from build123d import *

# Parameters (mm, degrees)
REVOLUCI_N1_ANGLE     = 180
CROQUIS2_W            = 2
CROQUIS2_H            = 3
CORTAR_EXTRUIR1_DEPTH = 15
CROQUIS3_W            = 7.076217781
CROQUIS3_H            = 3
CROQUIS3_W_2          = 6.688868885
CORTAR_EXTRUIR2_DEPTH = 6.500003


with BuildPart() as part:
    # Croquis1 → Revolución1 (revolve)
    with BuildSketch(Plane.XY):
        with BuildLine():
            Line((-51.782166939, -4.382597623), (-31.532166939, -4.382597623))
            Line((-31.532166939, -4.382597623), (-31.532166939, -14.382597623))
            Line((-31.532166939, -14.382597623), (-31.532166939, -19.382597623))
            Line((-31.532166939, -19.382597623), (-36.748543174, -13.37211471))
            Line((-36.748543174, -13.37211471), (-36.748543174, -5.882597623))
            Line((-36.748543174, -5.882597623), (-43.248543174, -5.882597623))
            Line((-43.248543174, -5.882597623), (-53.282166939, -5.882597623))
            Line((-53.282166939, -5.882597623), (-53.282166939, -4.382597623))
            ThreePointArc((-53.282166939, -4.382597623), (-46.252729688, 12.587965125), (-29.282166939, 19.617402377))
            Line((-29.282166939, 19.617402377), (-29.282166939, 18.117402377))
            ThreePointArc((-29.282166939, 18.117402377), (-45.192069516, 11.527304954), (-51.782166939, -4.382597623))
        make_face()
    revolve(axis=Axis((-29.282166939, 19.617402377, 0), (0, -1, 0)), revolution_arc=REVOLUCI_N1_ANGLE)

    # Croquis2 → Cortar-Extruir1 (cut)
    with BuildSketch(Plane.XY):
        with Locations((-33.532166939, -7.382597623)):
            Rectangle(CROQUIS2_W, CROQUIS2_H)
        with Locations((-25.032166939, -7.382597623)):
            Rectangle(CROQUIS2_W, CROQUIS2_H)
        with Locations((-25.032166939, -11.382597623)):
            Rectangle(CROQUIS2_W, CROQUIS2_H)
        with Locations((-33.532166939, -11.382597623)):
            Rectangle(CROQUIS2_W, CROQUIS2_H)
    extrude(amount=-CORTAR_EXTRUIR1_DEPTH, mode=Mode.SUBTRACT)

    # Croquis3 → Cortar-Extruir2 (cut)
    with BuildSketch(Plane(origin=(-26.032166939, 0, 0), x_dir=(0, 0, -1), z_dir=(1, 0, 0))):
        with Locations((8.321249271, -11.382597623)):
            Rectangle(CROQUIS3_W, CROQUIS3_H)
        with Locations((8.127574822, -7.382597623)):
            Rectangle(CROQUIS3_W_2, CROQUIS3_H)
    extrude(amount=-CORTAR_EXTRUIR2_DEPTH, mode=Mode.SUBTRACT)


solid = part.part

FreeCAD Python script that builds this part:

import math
import FreeCAD as App
import Part
import Sketcher
from FreeCAD import Vector

doc = App.newDocument("Part")
body = doc.addObject("PartDesign::Body", "Body")

# Sketch on XY plane
sketch1 = doc.addObject("Sketcher::SketchObject", "Sketch")
body.addObject(sketch1)
sketch1.AttachmentSupport = (doc.XY_Plane, [""])
sketch1.MapMode = "FlatFace"
sketch1.addGeometry([
    Part.LineSegment(Vector(-31.5, -4.4, 0), Vector(-51.8, -4.4, 0)),  # 0
    Part.ArcOfCircle(Part.Circle(Vector(-29.3, -4.4, 0), Vector(0, 0, 1), 22.5), math.radians(90), math.radians(180)),  # 1
    Part.LineSegment(Vector(-29.3, 18.1, 0), Vector(-29.3, 19.6, 0)),  # 2
    Part.ArcOfCircle(Part.Circle(Vector(-29.3, -4.4, 0), Vector(0, 0, 1), 24), math.radians(90), math.radians(180)),  # 3
    Part.LineSegment(Vector(-53.3, -4.4, 0), Vector(-53.3, -5.9, 0)),  # 4
    Part.LineSegment(Vector(-53.3, -5.9, 0), Vector(-36.7, -5.9, 0)),  # 5
    Part.LineSegment(Vector(-36.7, -5.9, 0), Vector(-36.7, -13.4, 0)),  # 6
    Part.LineSegment(Vector(-36.7, -13.4, 0), Vector(-31.5, -19.4, 0)),  # 7
    Part.LineSegment(Vector(-31.5, -19.4, 0), Vector(-31.5, -4.4, 0)),  # 8
], False)
sketch1.addGeometry(Part.LineSegment(Vector(-29.3, 19.6, 0), Vector(-29.3, -19.4, 0)), True)  # axis
sketch1.addConstraint([
    Sketcher.Constraint("Coincident", 0, 2, 1, 2),
    Sketcher.Constraint("Coincident", 1, 1, 2, 1),
    Sketcher.Constraint("Coincident", 2, 2, 3, 1),
    Sketcher.Constraint("Tangent", 3, 2, 4, 1),
    Sketcher.Constraint("Coincident", 4, 2, 5, 1),
    Sketcher.Constraint("Coincident", 5, 2, 6, 1),
    Sketcher.Constraint("Coincident", 6, 2, 7, 1),
    Sketcher.Constraint("Coincident", 7, 2, 8, 1),
    Sketcher.Constraint("Coincident", 8, 2, 0, 1),
    Sketcher.Constraint("Horizontal", 0),
    Sketcher.Constraint("Vertical", 2),
    Sketcher.Constraint("Vertical", 4),
    Sketcher.Constraint("Horizontal", 5),
    Sketcher.Constraint("Vertical", 6),
    Sketcher.Constraint("Vertical", 8),
    Sketcher.Constraint("Vertical", 9),
    Sketcher.Constraint("Coincident", 3, 3, 1, 3),
    Sketcher.Constraint("Coincident", 9, 1, 2, 2),
    Sketcher.Constraint("Horizontal", 3, 3, 0, 2),
    Sketcher.Constraint("Horizontal", 7, 2, 9, 2),
    Sketcher.Constraint("Vertical", 3, 3, 1, 1),
    Sketcher.Constraint("Equal", 2, 4),
    Sketcher.Constraint("Radius", 3, 24.0),
    Sketcher.Constraint("Radius", 1, 22.5),
    Sketcher.Constraint("DistanceY", 8, 1, 8, 2, 15.0),
    Sketcher.Constraint("DistanceX", 0, 2, 0, 1, 20.25),
    Sketcher.Constraint("DistanceX", 5, 1, 5, 2, 16.533624),
    Sketcher.Constraint("DistanceY", 6, 2, 6, 1, 7.489517),
    Sketcher.Constraint("DistanceX", 1, 3, -1, 1, 29.282167),
    Sketcher.Constraint("DistanceY", 1, 3, -1, 1, 4.382598),
])
revolution = doc.addObject("PartDesign::Revolution", "Revolution")
body.addObject(revolution)
revolution.Profile = sketch1
revolution.ReferenceAxis = (sketch1, ["Axis0"])
revolution.Angle = 180

# Sketch on XY plane
sketch2 = doc.addObject("Sketcher::SketchObject", "Sketch001")
body.addObject(sketch2)
sketch2.AttachmentSupport = (doc.XY_Plane, [""])
sketch2.MapMode = "FlatFace"
sketch2.addGeometry([
    Part.LineSegment(Vector(-34.5, -5.9, 0), Vector(-34.5, -8.9, 0)),  # 0
    Part.LineSegment(Vector(-34.5, -8.9, 0), Vector(-32.5, -8.9, 0)),  # 1
    Part.LineSegment(Vector(-32.5, -8.9, 0), Vector(-32.5, -5.9, 0)),  # 2
    Part.LineSegment(Vector(-32.5, -5.9, 0), Vector(-34.5, -5.9, 0)),  # 3
    Part.LineSegment(Vector(-26, -5.9, 0), Vector(-26, -8.9, 0)),  # 4
    Part.LineSegment(Vector(-26, -8.9, 0), Vector(-24, -8.9, 0)),  # 5
    Part.LineSegment(Vector(-24, -8.9, 0), Vector(-24, -5.9, 0)),  # 6
    Part.LineSegment(Vector(-24, -5.9, 0), Vector(-26, -5.9, 0)),  # 7
    Part.LineSegment(Vector(-26, -9.9, 0), Vector(-26, -12.9, 0)),  # 8
    Part.LineSegment(Vector(-26, -12.9, 0), Vector(-24, -12.9, 0)),  # 9
    Part.LineSegment(Vector(-24, -12.9, 0), Vector(-24, -9.9, 0)),  # 10
    Part.LineSegment(Vector(-24, -9.9, 0), Vector(-26, -9.9, 0)),  # 11
    Part.LineSegment(Vector(-34.5, -9.9, 0), Vector(-34.5, -12.9, 0)),  # 12
    Part.LineSegment(Vector(-34.5, -12.9, 0), Vector(-32.5, -12.9, 0)),  # 13
    Part.LineSegment(Vector(-32.5, -12.9, 0), Vector(-32.5, -9.9, 0)),  # 14
    Part.LineSegment(Vector(-32.5, -9.9, 0), Vector(-34.5, -9.9, 0)),  # 15
], False)
sketch2.addConstraint([
    Sketcher.Constraint("Coincident", 0, 2, 1, 1),
    Sketcher.Constraint("Coincident", 1, 2, 2, 1),
    Sketcher.Constraint("Coincident", 2, 2, 3, 1),
    Sketcher.Constraint("Coincident", 3, 2, 0, 1),
    Sketcher.Constraint("Coincident", 4, 2, 5, 1),
    Sketcher.Constraint("Coincident", 5, 2, 6, 1),
    Sketcher.Constraint("Coincident", 6, 2, 7, 1),
    Sketcher.Constraint("Coincident", 7, 2, 4, 1),
    Sketcher.Constraint("Coincident", 8, 2, 9, 1),
    Sketcher.Constraint("Coincident", 9, 2, 10, 1),
    Sketcher.Constraint("Coincident", 10, 2, 11, 1),
    Sketcher.Constraint("Coincident", 11, 2, 8, 1),
    Sketcher.Constraint("Coincident", 12, 2, 13, 1),
    Sketcher.Constraint("Coincident", 13, 2, 14, 1),
    Sketcher.Constraint("Coincident", 14, 2, 15, 1),
    Sketcher.Constraint("Coincident", 15, 2, 12, 1),
    Sketcher.Constraint("Vertical", 0),
    Sketcher.Constraint("Horizontal", 1),
    Sketcher.Constraint("Vertical", 2),
    Sketcher.Constraint("Horizontal", 3),
    Sketcher.Constraint("Vertical", 4),
    Sketcher.Constraint("Horizontal", 5),
    Sketcher.Constraint("Vertical", 6),
    Sketcher.Constraint("Horizontal", 7),
    Sketcher.Constraint("Vertical", 8),
    Sketcher.Constraint("Horizontal", 9),
    Sketcher.Constraint("Vertical", 10),
    Sketcher.Constraint("Horizontal", 11),
    Sketcher.Constraint("Vertical", 12),
    Sketcher.Constraint("Horizontal", 13),
    Sketcher.Constraint("Vertical", 14),
    Sketcher.Constraint("Horizontal", 15),
    Sketcher.Constraint("Horizontal", 1, 2, 4, 2),
    Sketcher.Constraint("Horizontal", 3, 2, 6, 2),
    Sketcher.Constraint("Horizontal", 9, 2, 12, 2),
    Sketcher.Constraint("Horizontal", 11, 2, 14, 2),
    Sketcher.Constraint("Vertical", 7, 2, 8, 2),
    Sketcher.Constraint("Vertical", 6, 2, 9, 2),
    Sketcher.Constraint("Vertical", 3, 2, 12, 2),
    Sketcher.Constraint("Vertical", 2, 2, 13, 2),
    Sketcher.Constraint("Equal", 3, 5),
    Sketcher.Constraint("Equal", 6, 8),
    Sketcher.Constraint("DistanceX", 1, 1, 1, 2, 2.0),
    Sketcher.Constraint("DistanceY", 0, 2, 0, 1, 3.0),
    Sketcher.Constraint("DistanceY", 8, 2, 4, 2, 4.0),
    Sketcher.Constraint("DistanceX", 1, 2, 4, 2, 6.5),
    Sketcher.Constraint("DistanceX", 0, 2, -1, 1, 34.532167),
    Sketcher.Constraint("DistanceY", 0, 2, -1, 1, 8.882598),
])
pocket1 = doc.addObject("PartDesign::Pocket", "Pocket")
body.addObject(pocket1)
pocket1.Profile = sketch2
pocket1.Length = 15

# Sketch on YZ plane
sketch3 = doc.addObject("Sketcher::SketchObject", "Sketch002")
body.addObject(sketch3)
sketch3.AttachmentSupport = (doc.YZ_Plane, [""])
sketch3.MapMode = "FlatFace"
sketch3.AttachmentOffset = App.Placement(Vector(0, 0, -26.032167), App.Rotation())
sketch3.addGeometry([
    Part.LineSegment(Vector(-9.9, -4.8, 0), Vector(-12.9, -4.8, 0)),  # 0
    Part.LineSegment(Vector(-12.9, -4.8, 0), Vector(-12.9, -11.9, 0)),  # 1
    Part.LineSegment(Vector(-12.9, -11.9, 0), Vector(-9.9, -11.9, 0)),  # 2
    Part.LineSegment(Vector(-9.9, -11.9, 0), Vector(-9.9, -4.8, 0)),  # 3
    Part.LineSegment(Vector(-5.9, -4.8, 0), Vector(-8.9, -4.8, 0)),  # 4
    Part.LineSegment(Vector(-8.9, -4.8, 0), Vector(-8.9, -11.5, 0)),  # 5
    Part.LineSegment(Vector(-8.9, -11.5, 0), Vector(-5.9, -11.5, 0)),  # 6
    Part.LineSegment(Vector(-5.9, -11.5, 0), Vector(-5.9, -4.8, 0)),  # 7
], False)
sketch3.addConstraint([
    Sketcher.Constraint("Coincident", 0, 2, 1, 1),
    Sketcher.Constraint("Coincident", 1, 2, 2, 1),
    Sketcher.Constraint("Coincident", 2, 2, 3, 1),
    Sketcher.Constraint("Coincident", 3, 2, 0, 1),
    Sketcher.Constraint("Coincident", 4, 2, 5, 1),
    Sketcher.Constraint("Coincident", 5, 2, 6, 1),
    Sketcher.Constraint("Coincident", 6, 2, 7, 1),
    Sketcher.Constraint("Coincident", 7, 2, 4, 1),
    Sketcher.Constraint("Horizontal", 0),
    Sketcher.Constraint("Vertical", 1),
    Sketcher.Constraint("Horizontal", 2),
    Sketcher.Constraint("Vertical", 3),
    Sketcher.Constraint("Horizontal", 4),
    Sketcher.Constraint("Vertical", 5),
    Sketcher.Constraint("Horizontal", 6),
    Sketcher.Constraint("Vertical", 7),
    Sketcher.Constraint("Horizontal", 3, 2, 4, 2),
    Sketcher.Constraint("Equal", 2, 4),
    Sketcher.Constraint("DistanceX", 0, 2, 0, 1, 3.0),
    Sketcher.Constraint("DistanceX", 3, 2, 4, 2, 1.0),
    Sketcher.Constraint("DistanceY", 5, 2, 5, 1, 6.688869),
    Sketcher.Constraint("DistanceY", 1, 2, 1, 1, 7.076218),
    Sketcher.Constraint("DistanceY", 0, 2, -1, 1, 4.78314),
    Sketcher.Constraint("DistanceX", 0, 2, -1, 1, 12.882598),
])
pocket2 = doc.addObject("PartDesign::Pocket", "Pocket001")
body.addObject(pocket2)
pocket2.Profile = sketch3
pocket2.Length = 6.500003

doc.recompute()
